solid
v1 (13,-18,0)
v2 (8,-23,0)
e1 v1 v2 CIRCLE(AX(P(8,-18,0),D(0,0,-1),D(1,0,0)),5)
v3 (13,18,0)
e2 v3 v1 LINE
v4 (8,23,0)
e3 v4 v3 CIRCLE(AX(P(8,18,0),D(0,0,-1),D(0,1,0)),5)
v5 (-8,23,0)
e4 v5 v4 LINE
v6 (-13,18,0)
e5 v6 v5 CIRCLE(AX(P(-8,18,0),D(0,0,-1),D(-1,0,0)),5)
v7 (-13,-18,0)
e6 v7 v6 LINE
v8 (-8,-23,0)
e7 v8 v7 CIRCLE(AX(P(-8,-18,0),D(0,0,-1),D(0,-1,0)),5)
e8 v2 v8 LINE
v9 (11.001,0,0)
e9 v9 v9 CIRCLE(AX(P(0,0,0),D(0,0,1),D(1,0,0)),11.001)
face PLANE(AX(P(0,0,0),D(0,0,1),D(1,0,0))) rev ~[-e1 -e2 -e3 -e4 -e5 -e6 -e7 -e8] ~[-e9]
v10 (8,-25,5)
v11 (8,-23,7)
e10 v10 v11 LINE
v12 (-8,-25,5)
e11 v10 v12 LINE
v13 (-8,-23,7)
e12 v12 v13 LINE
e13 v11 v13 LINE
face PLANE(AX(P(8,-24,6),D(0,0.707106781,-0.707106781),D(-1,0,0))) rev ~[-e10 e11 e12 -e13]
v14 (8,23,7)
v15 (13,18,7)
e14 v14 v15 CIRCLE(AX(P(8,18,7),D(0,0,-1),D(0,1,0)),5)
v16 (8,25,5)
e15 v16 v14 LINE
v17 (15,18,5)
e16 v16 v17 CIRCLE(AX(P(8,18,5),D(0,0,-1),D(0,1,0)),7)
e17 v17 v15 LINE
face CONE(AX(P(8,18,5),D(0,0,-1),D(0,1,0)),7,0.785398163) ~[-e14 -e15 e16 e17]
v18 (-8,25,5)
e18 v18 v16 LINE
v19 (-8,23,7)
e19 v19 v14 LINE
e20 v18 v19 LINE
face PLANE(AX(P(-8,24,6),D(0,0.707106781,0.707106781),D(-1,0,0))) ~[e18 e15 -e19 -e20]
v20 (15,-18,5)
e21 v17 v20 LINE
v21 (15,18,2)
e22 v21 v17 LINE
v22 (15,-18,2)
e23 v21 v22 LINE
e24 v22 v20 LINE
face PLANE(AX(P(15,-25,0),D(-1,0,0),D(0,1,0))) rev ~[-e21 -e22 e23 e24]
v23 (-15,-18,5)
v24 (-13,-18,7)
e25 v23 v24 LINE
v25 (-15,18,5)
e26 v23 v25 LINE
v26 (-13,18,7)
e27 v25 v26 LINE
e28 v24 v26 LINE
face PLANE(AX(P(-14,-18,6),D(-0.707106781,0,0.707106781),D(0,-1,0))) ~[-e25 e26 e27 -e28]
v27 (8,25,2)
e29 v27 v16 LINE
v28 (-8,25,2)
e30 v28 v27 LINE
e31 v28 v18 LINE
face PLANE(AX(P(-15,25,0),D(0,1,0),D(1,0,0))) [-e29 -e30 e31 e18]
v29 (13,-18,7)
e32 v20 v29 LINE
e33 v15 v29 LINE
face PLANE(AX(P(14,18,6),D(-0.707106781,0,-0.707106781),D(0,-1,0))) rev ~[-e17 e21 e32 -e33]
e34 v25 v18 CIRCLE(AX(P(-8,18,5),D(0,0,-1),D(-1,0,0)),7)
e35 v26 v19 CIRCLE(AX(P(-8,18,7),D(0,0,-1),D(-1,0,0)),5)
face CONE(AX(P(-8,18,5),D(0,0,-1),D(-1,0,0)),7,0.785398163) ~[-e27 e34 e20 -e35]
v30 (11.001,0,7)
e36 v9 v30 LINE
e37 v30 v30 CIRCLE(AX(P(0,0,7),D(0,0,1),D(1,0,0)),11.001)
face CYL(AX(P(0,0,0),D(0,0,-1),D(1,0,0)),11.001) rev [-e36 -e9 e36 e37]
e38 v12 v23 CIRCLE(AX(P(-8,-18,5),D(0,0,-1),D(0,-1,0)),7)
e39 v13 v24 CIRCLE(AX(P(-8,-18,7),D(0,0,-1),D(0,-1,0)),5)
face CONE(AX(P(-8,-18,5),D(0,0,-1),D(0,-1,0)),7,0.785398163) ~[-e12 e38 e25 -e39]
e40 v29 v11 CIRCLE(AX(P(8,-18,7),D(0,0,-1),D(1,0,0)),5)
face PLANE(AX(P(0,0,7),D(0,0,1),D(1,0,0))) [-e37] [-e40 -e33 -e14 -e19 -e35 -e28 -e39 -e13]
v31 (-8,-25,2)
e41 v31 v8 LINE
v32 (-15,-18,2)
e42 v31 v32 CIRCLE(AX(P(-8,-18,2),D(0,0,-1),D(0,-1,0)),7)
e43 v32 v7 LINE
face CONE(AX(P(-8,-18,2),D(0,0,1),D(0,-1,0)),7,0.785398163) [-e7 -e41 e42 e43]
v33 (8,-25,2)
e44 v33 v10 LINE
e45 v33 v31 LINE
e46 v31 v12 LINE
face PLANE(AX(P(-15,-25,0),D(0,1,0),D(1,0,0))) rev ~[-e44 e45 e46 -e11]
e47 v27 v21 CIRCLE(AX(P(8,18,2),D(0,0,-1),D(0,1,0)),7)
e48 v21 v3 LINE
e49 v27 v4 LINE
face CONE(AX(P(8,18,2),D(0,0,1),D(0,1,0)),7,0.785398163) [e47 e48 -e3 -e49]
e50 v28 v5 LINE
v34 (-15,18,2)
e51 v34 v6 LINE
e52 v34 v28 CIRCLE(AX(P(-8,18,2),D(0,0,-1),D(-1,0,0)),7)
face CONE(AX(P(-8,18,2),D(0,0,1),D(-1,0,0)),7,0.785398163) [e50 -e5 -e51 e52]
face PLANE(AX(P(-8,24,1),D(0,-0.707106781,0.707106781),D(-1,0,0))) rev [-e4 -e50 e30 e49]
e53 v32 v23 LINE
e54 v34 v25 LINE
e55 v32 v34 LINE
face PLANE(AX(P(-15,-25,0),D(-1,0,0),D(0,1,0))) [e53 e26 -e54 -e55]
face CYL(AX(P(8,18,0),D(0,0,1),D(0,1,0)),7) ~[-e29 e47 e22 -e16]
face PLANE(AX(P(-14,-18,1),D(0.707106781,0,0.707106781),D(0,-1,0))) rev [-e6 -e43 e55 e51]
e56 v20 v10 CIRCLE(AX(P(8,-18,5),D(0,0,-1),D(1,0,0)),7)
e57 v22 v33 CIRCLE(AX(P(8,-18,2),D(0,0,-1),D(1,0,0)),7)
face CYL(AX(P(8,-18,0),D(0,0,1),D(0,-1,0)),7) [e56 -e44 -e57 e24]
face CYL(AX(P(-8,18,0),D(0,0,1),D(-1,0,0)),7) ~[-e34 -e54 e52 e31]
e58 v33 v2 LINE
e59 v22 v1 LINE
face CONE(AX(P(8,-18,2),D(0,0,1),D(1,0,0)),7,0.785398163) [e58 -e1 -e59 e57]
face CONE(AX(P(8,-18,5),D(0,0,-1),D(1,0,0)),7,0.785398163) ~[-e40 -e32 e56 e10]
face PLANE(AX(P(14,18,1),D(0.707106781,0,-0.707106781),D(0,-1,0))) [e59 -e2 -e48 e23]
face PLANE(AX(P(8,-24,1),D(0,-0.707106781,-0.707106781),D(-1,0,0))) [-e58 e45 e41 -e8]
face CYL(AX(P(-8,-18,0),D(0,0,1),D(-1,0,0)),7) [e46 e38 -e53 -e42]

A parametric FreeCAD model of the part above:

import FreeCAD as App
import Part
import Sketcher

V = App.Vector
Q = App.Units.Quantity


def edges_at(feature, points):
    """Names of the edges that pass closest to the given points."""
    edges = feature.Shape.Edges
    near = lambda p: min(range(len(edges)), key=lambda i: edges[i].distToShape(Part.Vertex(*p))[0])
    return sorted({f"Edge{near(p) + 1}" for p in points})


def add_polygon(sketch, points):
    """Adds a closed chain of lines whose ends are joined by coincident constraints."""
    first, n = sketch.GeometryCount, len(points)
    for a, b in zip(points, points[1:] + points[:1]):
        sketch.addGeometry(Part.LineSegment(App.Vector(*a, 0), App.Vector(*b, 0)), False)
    for i in range(n):
        sketch.addConstraint(Sketcher.Constraint("Coincident", first + i, 2, first + (i + 1) % n, 1))

doc = App.newDocument("Part")
params = doc.addObject("Spreadsheet::Sheet", "Params")
for row, (alias, value) in enumerate([
    ("sketch1_width", "30 mm"),
    ("sketch1_height", "50 mm"),
    ("pad1_length", "7 mm"),
    ("fillet_radius", "7 mm"),
    ("chamfer_size", "2 mm"),
], start=1):
    params.set(f"A{row}", alias)
    params.set(f"B{row}", "=" + value)
    params.setAlias(f"B{row}", alias)

body = doc.addObject("PartDesign::Body", "Body")

sketch1 = body.newObject("Sketcher::SketchObject", "Sketch")
sketch1.AttachmentSupport = (doc.getObject("XY_Plane"), [""])
sketch1.MapMode = "FlatFace"
add_polygon(sketch1, [(-15, 25), (-15, -25), (15, -25), (15, 25)])
sketch1.addGeometry(Part.Circle(V(0, 0, 0), V(0, 0, 1), 11), False)
sketch1.addConstraint([
    Sketcher.Constraint("Vertical", 0),
    Sketcher.Constraint("Horizontal", 1),
    Sketcher.Constraint("Vertical", 2),
    Sketcher.Constraint("Horizontal", 3),
    Sketcher.Constraint("Coincident", 4, 3, -1, 1),
    Sketcher.Constraint("Symmetric", 0, 2, 2, 2, -1, 1),
    Sketcher.Constraint("DistanceX", 1, 1, 1, 2, Q("30 mm")),
    Sketcher.Constraint("DistanceY", 0, 2, 0, 1, Q("50 mm")),
    Sketcher.Constraint("Diameter", 4, Q("22.002 mm")),
])
sketch1.setExpression("Constraints[10]", "Params.sketch1_width")
sketch1.setExpression("Constraints[11]", "Params.sketch1_height")
pad1 = body.newObject("PartDesign::Pad", "Pad")
pad1.Profile = sketch1
pad1.setExpression("Length", "Params.pad1_length")
doc.recompute()

fillet = body.newObject("PartDesign::Fillet", "Fillet")
fillet.Base = (pad1, edges_at(pad1, [
    (-15, -25, 3.5),
    (15, -25, 3.5),
    (-15, 25, 3.5),
    (15, 25, 3.5),
]))
fillet.setExpression("Radius", "Params.fillet_radius")
doc.recompute()

chamfer = body.newObject("PartDesign::Chamfer", "Chamfer")
chamfer.Base = (fillet, edges_at(fillet, [(-15, 0, 7), (-15, 0, 0)]))
chamfer.setExpression("Size", "Params.chamfer_size")

doc.recompute()
